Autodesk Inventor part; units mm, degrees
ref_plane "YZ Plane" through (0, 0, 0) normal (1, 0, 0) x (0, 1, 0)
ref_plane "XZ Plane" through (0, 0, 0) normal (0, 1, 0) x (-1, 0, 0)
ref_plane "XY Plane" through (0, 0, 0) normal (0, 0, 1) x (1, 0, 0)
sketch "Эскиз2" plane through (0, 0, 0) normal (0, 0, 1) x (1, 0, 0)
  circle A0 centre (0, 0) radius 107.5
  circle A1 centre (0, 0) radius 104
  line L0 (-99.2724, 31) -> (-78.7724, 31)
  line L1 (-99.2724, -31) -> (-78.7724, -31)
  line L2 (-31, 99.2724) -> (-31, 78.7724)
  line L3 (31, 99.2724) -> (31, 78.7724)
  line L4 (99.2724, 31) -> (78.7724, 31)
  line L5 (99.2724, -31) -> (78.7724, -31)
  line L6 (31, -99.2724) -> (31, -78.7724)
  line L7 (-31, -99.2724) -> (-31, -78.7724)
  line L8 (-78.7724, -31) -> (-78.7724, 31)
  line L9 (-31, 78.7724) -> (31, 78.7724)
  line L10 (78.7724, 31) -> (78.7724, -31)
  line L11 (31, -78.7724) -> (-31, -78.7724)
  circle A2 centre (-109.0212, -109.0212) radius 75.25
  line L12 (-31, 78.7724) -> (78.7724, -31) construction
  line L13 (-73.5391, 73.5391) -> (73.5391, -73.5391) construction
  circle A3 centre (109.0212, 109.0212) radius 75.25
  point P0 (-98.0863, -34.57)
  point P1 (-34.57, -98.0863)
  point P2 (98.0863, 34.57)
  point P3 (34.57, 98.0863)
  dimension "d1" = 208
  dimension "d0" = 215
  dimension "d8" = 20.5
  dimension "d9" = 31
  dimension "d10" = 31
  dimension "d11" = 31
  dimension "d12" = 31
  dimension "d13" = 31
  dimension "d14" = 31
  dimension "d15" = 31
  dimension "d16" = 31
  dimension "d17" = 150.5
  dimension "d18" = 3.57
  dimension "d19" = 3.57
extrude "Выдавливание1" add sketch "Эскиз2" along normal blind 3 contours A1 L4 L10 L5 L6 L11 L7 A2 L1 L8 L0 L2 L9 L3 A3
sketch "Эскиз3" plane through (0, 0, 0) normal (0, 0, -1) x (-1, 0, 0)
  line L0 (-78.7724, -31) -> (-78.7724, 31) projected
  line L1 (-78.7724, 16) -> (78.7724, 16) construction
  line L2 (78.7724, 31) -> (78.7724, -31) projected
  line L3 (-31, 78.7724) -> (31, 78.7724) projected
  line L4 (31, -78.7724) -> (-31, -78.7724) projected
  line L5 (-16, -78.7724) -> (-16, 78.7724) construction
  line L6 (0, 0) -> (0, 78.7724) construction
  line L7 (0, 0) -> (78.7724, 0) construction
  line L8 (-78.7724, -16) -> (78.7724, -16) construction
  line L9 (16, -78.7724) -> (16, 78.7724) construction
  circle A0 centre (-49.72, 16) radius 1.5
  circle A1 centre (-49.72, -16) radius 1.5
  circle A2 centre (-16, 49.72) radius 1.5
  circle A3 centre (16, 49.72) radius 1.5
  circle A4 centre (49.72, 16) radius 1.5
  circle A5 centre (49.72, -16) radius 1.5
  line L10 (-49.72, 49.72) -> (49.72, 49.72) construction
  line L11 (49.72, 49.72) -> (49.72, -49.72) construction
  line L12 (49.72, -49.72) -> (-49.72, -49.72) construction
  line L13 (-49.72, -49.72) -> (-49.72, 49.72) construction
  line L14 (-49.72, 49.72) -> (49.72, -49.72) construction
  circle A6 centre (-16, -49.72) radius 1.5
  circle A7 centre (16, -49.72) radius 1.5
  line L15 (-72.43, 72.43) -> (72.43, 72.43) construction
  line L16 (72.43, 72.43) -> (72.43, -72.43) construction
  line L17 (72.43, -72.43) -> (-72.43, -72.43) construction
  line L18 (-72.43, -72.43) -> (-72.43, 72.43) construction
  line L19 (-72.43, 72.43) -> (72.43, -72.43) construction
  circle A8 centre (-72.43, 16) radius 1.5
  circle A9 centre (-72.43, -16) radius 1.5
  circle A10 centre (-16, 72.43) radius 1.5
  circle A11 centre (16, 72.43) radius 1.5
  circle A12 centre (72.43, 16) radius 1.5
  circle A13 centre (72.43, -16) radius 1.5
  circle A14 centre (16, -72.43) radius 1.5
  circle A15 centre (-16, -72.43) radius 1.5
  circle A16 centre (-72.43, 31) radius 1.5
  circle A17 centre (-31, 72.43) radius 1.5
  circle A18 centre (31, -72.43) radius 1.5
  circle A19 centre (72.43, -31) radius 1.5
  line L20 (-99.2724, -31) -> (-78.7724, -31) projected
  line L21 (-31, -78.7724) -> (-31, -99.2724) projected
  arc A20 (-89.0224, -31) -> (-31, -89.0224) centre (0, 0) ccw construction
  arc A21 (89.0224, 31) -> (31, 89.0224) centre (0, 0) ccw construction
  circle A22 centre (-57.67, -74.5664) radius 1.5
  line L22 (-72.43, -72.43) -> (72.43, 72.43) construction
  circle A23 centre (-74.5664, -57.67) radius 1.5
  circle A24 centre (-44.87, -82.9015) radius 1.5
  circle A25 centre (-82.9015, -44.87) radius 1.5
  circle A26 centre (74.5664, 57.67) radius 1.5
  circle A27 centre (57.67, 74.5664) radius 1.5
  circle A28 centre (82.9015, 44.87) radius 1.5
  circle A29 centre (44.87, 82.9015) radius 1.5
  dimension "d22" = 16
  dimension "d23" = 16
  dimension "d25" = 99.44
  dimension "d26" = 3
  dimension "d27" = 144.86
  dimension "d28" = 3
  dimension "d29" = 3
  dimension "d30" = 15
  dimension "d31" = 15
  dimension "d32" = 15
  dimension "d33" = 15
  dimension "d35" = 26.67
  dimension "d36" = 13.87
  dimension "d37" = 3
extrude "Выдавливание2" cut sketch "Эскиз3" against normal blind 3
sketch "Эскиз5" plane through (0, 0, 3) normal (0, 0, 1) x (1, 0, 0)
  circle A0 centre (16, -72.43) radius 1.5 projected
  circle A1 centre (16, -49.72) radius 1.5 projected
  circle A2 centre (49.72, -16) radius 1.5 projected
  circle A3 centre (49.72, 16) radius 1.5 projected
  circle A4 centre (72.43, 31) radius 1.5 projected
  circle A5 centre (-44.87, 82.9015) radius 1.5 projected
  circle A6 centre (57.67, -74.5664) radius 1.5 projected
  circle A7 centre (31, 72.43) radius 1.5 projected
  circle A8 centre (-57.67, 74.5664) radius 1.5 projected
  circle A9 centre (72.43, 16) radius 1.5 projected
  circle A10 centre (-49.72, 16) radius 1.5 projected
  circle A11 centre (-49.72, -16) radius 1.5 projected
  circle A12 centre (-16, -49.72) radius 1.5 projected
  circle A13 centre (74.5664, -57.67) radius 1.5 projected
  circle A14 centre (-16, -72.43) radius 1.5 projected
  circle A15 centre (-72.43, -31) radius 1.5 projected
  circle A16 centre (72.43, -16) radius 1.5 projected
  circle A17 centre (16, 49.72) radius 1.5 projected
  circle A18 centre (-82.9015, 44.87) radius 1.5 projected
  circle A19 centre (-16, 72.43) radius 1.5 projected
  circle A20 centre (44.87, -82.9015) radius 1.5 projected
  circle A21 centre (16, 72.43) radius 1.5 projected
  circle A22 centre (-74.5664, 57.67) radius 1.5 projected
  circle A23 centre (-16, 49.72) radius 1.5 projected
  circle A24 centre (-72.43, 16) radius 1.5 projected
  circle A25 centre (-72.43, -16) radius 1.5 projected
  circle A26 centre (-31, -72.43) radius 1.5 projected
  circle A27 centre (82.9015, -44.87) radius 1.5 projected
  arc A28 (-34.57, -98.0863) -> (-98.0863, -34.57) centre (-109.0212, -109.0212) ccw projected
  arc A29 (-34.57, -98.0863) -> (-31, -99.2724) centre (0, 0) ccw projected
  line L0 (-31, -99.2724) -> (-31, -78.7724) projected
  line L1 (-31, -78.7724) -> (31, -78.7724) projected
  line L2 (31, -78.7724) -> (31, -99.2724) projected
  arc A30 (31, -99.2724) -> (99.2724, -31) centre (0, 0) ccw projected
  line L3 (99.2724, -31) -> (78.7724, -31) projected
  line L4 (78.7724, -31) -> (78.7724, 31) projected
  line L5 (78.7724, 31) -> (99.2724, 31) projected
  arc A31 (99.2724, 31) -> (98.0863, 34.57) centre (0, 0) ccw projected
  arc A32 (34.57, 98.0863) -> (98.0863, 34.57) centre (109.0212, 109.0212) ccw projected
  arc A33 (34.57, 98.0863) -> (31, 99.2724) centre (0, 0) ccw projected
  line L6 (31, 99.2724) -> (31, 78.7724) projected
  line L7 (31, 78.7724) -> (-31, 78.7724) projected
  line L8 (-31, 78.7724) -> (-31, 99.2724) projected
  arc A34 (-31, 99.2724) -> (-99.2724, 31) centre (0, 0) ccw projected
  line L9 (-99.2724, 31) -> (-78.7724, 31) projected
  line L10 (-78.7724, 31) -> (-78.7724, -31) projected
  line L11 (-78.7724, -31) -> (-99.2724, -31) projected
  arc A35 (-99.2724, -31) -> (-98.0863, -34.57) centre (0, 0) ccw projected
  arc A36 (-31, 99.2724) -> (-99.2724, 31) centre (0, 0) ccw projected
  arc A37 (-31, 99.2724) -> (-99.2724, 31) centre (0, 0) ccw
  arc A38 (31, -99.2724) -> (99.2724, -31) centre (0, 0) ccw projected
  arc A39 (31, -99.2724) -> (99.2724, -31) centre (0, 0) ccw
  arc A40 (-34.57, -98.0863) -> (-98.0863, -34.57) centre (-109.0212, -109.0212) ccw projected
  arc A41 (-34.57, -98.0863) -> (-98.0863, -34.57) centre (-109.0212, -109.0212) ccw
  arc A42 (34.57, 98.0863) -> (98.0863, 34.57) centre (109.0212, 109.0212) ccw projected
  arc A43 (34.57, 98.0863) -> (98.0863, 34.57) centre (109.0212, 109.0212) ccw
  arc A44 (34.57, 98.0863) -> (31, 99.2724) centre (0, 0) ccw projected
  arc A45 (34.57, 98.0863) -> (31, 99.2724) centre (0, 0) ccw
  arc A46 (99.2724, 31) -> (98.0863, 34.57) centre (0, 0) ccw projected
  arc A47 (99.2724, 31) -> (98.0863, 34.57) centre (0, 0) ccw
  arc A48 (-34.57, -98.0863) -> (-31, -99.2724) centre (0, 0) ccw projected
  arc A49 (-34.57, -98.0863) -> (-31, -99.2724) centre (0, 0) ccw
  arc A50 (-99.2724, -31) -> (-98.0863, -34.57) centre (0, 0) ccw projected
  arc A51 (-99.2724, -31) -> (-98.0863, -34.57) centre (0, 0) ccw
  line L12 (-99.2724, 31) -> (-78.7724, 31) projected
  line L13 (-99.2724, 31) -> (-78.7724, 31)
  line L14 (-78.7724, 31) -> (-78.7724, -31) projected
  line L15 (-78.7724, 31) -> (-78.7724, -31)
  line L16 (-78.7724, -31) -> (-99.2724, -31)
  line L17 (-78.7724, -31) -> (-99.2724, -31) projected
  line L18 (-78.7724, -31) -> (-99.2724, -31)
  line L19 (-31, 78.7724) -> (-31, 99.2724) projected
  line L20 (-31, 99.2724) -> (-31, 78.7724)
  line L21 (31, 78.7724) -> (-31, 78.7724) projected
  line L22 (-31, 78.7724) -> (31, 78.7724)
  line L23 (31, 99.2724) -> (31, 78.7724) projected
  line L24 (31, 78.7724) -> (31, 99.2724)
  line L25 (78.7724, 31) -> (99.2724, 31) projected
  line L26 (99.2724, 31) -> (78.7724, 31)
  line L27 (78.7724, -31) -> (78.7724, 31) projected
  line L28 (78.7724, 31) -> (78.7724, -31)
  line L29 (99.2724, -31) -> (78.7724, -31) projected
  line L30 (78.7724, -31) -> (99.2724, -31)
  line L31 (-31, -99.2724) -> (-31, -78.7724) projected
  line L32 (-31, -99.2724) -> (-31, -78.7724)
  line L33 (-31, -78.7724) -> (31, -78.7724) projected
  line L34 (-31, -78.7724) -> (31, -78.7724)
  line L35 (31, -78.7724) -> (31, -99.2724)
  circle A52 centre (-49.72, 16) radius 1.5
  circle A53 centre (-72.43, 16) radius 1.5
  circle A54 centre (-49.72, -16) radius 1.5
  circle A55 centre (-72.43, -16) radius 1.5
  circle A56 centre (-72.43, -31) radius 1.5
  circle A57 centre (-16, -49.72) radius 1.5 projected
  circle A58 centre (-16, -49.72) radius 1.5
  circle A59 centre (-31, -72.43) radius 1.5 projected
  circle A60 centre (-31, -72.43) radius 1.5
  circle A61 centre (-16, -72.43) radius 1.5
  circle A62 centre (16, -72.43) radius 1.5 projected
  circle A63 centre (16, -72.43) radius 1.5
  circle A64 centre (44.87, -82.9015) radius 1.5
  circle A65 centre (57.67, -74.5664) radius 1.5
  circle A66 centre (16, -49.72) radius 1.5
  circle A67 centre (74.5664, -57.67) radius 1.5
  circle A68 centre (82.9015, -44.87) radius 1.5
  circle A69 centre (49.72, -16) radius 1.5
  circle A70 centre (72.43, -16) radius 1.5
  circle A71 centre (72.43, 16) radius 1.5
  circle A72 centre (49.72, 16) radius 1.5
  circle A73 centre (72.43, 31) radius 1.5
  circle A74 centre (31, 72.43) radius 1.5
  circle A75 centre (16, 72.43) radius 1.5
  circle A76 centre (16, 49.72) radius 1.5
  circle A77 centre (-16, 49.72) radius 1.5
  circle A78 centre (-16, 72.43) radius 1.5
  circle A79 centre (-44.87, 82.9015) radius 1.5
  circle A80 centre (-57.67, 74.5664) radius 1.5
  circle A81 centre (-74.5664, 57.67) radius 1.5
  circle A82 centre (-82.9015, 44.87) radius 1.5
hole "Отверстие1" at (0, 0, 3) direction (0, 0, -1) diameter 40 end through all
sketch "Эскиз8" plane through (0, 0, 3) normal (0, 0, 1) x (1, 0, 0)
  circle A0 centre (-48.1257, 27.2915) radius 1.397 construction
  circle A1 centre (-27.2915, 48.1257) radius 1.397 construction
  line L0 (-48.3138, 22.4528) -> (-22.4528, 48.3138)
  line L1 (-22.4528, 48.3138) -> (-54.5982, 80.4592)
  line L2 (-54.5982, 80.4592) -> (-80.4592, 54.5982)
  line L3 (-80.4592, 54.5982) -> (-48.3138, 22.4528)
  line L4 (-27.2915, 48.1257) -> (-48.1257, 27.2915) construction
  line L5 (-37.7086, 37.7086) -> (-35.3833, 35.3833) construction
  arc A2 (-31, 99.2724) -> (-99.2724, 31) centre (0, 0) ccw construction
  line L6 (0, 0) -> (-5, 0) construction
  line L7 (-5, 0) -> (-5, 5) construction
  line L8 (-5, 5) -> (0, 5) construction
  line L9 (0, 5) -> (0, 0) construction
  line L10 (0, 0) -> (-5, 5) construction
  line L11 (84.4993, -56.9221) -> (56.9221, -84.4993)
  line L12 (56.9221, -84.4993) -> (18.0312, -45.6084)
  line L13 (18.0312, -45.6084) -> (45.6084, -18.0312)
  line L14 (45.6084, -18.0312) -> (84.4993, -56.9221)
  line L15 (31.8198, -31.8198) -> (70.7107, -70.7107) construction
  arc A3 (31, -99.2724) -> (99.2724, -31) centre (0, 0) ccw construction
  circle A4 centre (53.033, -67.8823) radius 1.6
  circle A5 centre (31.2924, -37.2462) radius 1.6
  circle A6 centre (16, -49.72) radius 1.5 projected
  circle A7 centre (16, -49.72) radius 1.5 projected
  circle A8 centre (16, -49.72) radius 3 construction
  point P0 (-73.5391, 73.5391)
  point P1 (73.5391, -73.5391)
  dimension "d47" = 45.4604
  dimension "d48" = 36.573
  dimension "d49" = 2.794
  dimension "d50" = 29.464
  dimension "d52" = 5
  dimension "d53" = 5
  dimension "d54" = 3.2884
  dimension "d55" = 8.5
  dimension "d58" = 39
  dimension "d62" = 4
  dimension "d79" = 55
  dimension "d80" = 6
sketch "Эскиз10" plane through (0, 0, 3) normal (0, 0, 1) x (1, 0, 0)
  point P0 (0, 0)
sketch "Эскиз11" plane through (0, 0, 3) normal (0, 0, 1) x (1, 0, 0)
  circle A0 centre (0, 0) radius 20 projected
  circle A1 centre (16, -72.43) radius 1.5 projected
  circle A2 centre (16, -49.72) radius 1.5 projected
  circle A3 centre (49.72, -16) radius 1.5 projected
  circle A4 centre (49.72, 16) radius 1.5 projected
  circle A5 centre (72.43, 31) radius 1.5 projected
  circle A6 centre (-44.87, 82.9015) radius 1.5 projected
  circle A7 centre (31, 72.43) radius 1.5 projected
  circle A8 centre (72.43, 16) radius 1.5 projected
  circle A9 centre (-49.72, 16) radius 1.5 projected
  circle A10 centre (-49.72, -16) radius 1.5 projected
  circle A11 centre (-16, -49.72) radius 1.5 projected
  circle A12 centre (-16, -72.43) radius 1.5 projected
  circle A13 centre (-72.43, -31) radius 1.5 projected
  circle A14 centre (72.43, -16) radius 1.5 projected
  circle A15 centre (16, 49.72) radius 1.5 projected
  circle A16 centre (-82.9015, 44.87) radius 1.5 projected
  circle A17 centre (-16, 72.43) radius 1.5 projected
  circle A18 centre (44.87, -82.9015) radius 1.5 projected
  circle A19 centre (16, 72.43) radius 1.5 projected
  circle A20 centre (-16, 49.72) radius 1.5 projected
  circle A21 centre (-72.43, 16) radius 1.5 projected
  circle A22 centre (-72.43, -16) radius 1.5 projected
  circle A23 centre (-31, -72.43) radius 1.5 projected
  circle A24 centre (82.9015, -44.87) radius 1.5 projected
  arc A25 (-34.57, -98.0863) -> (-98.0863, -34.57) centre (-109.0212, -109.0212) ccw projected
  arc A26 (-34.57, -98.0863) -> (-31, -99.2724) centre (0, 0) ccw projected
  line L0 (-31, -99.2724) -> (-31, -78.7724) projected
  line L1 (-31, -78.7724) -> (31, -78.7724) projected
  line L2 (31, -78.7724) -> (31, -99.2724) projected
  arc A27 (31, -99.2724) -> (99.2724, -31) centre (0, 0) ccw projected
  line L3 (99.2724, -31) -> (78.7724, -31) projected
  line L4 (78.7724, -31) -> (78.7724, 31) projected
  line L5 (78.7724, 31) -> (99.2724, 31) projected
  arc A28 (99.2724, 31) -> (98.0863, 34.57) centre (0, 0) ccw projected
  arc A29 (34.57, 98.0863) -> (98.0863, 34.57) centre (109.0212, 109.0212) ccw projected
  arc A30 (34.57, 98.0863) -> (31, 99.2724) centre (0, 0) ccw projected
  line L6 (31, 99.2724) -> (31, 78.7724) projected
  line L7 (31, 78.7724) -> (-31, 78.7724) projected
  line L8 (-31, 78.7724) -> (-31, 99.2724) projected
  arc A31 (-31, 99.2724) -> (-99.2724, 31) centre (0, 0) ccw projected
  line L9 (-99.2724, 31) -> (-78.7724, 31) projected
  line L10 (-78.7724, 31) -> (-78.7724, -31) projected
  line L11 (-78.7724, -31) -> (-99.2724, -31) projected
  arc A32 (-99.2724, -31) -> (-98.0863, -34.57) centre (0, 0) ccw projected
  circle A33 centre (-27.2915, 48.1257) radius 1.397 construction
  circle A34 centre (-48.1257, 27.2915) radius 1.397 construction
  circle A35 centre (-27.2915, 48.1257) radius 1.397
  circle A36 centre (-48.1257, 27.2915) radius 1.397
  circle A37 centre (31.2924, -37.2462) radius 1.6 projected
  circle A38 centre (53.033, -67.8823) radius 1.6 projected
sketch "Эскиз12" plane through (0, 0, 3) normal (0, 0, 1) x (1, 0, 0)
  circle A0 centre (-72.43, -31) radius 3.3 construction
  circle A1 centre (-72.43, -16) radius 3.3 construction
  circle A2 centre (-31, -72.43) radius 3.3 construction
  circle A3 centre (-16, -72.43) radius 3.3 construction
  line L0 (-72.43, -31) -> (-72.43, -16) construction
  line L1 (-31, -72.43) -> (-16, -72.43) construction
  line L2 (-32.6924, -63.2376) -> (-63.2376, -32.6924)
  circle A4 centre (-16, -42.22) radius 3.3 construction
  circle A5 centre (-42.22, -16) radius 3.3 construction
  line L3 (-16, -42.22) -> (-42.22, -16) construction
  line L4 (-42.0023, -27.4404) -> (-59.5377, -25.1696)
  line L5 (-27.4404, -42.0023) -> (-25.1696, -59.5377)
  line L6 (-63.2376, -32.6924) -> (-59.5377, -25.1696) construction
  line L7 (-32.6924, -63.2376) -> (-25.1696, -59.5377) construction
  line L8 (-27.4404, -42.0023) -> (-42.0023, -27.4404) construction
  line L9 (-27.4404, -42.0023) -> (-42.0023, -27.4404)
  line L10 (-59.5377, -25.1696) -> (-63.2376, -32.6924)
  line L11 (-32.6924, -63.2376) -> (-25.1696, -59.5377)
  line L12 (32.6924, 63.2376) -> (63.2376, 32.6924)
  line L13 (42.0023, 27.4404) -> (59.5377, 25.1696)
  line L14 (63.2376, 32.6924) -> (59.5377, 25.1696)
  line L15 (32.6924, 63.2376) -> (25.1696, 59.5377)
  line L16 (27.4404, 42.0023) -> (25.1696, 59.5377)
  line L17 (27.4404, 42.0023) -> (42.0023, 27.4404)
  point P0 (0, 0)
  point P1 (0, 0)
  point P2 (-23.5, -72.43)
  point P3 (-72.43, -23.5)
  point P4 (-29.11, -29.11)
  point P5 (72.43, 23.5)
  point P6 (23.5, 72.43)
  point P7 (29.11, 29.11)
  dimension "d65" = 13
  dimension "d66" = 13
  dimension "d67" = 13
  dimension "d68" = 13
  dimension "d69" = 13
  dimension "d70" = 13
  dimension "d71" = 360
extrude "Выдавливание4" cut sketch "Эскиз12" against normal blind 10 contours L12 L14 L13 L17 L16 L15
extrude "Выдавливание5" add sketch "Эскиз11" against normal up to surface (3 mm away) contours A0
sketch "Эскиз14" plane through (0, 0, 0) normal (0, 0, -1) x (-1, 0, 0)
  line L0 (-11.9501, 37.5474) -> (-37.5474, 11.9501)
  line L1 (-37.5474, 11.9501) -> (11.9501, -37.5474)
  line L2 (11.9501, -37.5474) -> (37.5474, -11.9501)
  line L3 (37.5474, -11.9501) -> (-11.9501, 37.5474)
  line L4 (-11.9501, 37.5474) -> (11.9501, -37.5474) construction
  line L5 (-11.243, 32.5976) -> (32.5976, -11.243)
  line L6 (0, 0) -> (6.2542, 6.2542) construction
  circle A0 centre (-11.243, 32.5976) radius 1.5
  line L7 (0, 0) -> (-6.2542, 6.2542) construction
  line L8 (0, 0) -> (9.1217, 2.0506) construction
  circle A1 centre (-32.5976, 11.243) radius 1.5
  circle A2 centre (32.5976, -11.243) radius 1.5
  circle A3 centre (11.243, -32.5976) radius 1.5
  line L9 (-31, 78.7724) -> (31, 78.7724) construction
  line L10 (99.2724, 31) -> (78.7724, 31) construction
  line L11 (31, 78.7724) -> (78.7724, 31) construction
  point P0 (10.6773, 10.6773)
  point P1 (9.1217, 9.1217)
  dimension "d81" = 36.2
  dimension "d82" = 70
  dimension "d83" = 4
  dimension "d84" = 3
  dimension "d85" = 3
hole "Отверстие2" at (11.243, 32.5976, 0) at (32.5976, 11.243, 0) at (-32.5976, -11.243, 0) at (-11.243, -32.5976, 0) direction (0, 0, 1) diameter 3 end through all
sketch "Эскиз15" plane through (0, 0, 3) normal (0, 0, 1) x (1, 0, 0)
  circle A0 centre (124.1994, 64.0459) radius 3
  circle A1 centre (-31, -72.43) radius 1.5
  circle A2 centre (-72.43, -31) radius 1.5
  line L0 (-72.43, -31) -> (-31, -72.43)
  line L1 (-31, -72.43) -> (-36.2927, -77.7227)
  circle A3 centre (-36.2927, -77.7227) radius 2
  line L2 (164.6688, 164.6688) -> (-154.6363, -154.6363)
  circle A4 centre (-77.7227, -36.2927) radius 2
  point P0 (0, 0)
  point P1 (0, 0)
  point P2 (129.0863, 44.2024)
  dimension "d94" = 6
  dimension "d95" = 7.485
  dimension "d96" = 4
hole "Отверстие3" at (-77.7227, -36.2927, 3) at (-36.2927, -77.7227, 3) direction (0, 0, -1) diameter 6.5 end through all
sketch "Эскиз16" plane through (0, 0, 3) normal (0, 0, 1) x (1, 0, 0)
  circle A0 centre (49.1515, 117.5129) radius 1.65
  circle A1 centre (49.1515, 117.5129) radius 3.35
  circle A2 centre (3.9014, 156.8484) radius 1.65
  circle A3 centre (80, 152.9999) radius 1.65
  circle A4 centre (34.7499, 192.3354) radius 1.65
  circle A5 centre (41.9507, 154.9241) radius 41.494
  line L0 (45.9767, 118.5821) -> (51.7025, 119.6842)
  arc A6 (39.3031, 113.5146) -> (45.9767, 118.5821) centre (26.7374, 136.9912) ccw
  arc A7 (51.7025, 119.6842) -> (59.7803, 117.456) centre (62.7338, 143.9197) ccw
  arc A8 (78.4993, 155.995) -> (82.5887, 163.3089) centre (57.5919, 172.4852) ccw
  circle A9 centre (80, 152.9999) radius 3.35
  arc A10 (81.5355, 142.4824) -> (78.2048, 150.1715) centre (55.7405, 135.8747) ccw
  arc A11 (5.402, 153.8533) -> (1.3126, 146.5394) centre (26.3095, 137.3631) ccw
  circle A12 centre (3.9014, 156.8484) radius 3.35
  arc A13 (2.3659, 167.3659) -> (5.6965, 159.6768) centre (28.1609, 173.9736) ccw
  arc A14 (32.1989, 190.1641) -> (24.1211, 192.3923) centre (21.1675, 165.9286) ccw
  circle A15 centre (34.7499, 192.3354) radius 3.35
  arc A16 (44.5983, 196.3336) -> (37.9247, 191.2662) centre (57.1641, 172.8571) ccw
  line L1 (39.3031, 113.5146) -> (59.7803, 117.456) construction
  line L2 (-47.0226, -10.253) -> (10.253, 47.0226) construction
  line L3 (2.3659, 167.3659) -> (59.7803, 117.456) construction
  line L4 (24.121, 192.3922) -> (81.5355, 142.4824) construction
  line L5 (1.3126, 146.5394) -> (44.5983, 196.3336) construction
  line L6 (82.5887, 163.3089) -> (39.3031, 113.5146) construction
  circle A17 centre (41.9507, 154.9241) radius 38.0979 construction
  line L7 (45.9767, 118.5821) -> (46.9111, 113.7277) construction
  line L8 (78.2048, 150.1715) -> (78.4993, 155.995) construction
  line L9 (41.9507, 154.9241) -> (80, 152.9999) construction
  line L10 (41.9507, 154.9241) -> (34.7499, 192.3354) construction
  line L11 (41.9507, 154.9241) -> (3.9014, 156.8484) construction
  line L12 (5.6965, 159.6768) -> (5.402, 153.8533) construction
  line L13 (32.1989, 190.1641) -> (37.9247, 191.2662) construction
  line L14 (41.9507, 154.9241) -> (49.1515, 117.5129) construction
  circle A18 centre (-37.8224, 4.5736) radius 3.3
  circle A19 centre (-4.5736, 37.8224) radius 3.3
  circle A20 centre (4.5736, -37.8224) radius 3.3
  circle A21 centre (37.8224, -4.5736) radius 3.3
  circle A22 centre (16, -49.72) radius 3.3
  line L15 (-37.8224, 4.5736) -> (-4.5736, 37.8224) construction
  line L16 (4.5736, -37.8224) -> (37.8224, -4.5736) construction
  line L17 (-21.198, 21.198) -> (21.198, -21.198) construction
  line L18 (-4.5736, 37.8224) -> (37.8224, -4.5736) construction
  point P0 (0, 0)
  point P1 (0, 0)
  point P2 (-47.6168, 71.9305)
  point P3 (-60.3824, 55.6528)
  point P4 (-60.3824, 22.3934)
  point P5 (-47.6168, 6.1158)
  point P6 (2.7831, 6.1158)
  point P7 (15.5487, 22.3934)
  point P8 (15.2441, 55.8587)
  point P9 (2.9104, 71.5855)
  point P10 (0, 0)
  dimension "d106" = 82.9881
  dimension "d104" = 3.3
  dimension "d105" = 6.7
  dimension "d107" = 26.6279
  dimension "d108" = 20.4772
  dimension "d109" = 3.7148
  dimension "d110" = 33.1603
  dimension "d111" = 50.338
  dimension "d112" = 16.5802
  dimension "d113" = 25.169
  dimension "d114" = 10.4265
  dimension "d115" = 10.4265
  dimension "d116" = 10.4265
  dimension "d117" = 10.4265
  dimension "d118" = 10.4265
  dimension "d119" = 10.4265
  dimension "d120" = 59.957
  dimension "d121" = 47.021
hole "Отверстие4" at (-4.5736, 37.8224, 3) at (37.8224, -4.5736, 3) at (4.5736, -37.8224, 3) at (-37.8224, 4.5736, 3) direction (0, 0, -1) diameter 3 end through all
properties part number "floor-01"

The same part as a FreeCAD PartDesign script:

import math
import FreeCAD as App
import Part
import Sketcher

V = App.Vector
Q = App.Units.Quantity

doc = App.newDocument("Part")
body = doc.addObject("PartDesign::Body", "Body")

sketch1 = body.newObject("Sketcher::SketchObject", "Sketch")
sketch1.AttachmentSupport = (doc.getObject("XY_Plane"), [""])
sketch1.MapMode = "FlatFace"
sketch1.addGeometry([
    Part.ArcOfCircle(Part.Circle(V(0, 0, 0), V(0, 0, 1), 104), math.radians(17.34), math.radians(19.41)),
    Part.ArcOfCircle(Part.Circle(V(109, 109, 0), V(0, 0, 1), 75.2), math.radians(-172), math.radians(-98)),
    Part.ArcOfCircle(Part.Circle(V(0, 0, 0), V(0, 0, 1), 104), math.radians(70.59), math.radians(72.66)),
    Part.LineSegment(V(31, 99.3, 0), V(31, 78.8, 0)),
    Part.LineSegment(V(31, 78.8, 0), V(-31, 78.8, 0)),
    Part.LineSegment(V(-31, 78.8, 0), V(-31, 99.3, 0)),
    Part.ArcOfCircle(Part.Circle(V(0, 0, 0), V(0, 0, 1), 104), math.radians(107), math.radians(163)),
    Part.LineSegment(V(-99.3, 31, 0), V(-78.8, 31, 0)),
    Part.LineSegment(V(-78.8, 31, 0), V(-78.8, -31, 0)),
    Part.LineSegment(V(-78.8, -31, 0), V(-99.3, -31, 0)),
    Part.ArcOfCircle(Part.Circle(V(0, 0, 0), V(0, 0, 1), 104), math.radians(-162.66), math.radians(-160.59)),
    Part.ArcOfCircle(Part.Circle(V(-109, -109, 0), V(0, 0, 1), 75.2), math.radians(8), math.radians(82)),
    Part.ArcOfCircle(Part.Circle(V(0, 0, 0), V(0, 0, 1), 104), math.radians(-109.41), math.radians(-107.34)),
    Part.LineSegment(V(-31, -99.3, 0), V(-31, -78.8, 0)),
    Part.LineSegment(V(-31, -78.8, 0), V(31, -78.8, 0)),
    Part.LineSegment(V(31, -78.8, 0), V(31, -99.3, 0)),
    Part.ArcOfCircle(Part.Circle(V(0, 0, 0), V(0, 0, 1), 104), math.radians(-73), math.radians(-17)),
    Part.LineSegment(V(99.3, -31, 0), V(78.8, -31, 0)),
    Part.LineSegment(V(78.8, -31, 0), V(78.8, 31, 0)),
    Part.LineSegment(V(78.8, 31, 0), V(99.3, 31, 0)),
], False)
sketch1.addConstraint([
    Sketcher.Constraint("Coincident", 0, 2, 1, 2),
    Sketcher.Constraint("Coincident", 1, 1, 2, 1),
    Sketcher.Constraint("Coincident", 2, 2, 3, 1),
    Sketcher.Constraint("Coincident", 3, 2, 4, 1),
    Sketcher.Constraint("Coincident", 4, 2, 5, 1),
    Sketcher.Constraint("Coincident", 5, 2, 6, 1),
    Sketcher.Constraint("Coincident", 6, 2, 7, 1),
    Sketcher.Constraint("Coincident", 7, 2, 8, 1),
    Sketcher.Constraint("Coincident", 8, 2, 9, 1),
    Sketcher.Constraint("Coincident", 9, 2, 10, 1),
    Sketcher.Constraint("Coincident", 10, 2, 11, 2),
    Sketcher.Constraint("Coincident", 11, 1, 12, 1),
    Sketcher.Constraint("Coincident", 12, 2, 13, 1),
    Sketcher.Constraint("Coincident", 13, 2, 14, 1),
    Sketcher.Constraint("Coincident", 14, 2, 15, 1),
    Sketcher.Constraint("Coincident", 15, 2, 16, 1),
    Sketcher.Constraint("Coincident", 16, 2, 17, 1),
    Sketcher.Constraint("Coincident", 17, 2, 18, 1),
    Sketcher.Constraint("Coincident", 18, 2, 19, 1),
    Sketcher.Constraint("Coincident", 19, 2, 0, 1),
    Sketcher.Constraint("Vertical", 3),
    Sketcher.Constraint("Horizontal", 4),
    Sketcher.Constraint("Vertical", 5),
    Sketcher.Constraint("Horizontal", 7),
    Sketcher.Constraint("Vertical", 8),
    Sketcher.Constraint("Horizontal", 9),
    Sketcher.Constraint("Vertical", 13),
    Sketcher.Constraint("Horizontal", 14),
    Sketcher.Constraint("Vertical", 15),
    Sketcher.Constraint("Horizontal", 17),
    Sketcher.Constraint("Vertical", 18),
    Sketcher.Constraint("Horizontal", 19),
    Sketcher.Constraint("Coincident", 0, 3, -1, 1),
    Sketcher.Constraint("Coincident", 2, 3, -1, 1),
    Sketcher.Constraint("Coincident", 6, 3, -1, 1),
    Sketcher.Constraint("Coincident", 10, 3, -1, 1),
    Sketcher.Constraint("Coincident", 12, 3, -1, 1),
    Sketcher.Constraint("Coincident", 16, 3, -1, 1),
    Sketcher.Constraint("Equal", 0, 2),
    Sketcher.Constraint("Equal", 2, 6),
    Sketcher.Constraint("Equal", 6, 10),
    Sketcher.Constraint("Equal", 1, 11),
    Sketcher.Constraint("Equal", 10, 12),
    Sketcher.Constraint("Equal", 12, 16),
    Sketcher.Constraint("Symmetric", 1, 3, 11, 3, -1, 1),
    Sketcher.Constraint("Symmetric", 3, 2, 13, 2, -1, 1),
    Sketcher.Constraint("Symmetric", 7, 2, 17, 2, -1, 1),
    Sketcher.Constraint("Horizontal", 2, 2, 5, 2),
    Sketcher.Constraint("Horizontal", 12, 2, 15, 2),
    Sketcher.Constraint("Horizontal", 9, 2, 16, 2),
    Sketcher.Constraint("Horizontal", 7, 2, 18, 2),
    Sketcher.Constraint("Equal", 19, 3),
    Sketcher.Constraint("Equal", 14, 8),
    Sketcher.Constraint("Radius", 0, Q("104 mm")),
    Sketcher.Constraint("Radius", 1, Q("75.25 mm")),
    Sketcher.Constraint("DistanceX", 7, 1, 7, 2, Q("20.5 mm")),
    Sketcher.Constraint("DistanceX", -1, 1, 3, 2, Q("31 mm")),
    Sketcher.Constraint("DistanceX", 2, 2, 1, 1, Q("3.57 mm")),
    Sketcher.Constraint("DistanceY", 10, 2, 9, 2, Q("3.57 mm")),
])
pad1 = body.newObject("PartDesign::Pad", "Pad")
pad1.Profile = sketch1
pad1.Length = 3

sketch2 = body.newObject("Sketcher::SketchObject", "Sketch001")
sketch2.AttachmentSupport = (doc.getObject("XY_Plane"), [""])
sketch2.MapMode = "FlatFace"
sketch2.addGeometry([
    Part.Circle(V(49.7, 16, 0), V(0, 0, 1), 1.5),
    Part.Circle(V(49.7, -16, 0), V(0, 0, 1), 1.5),
    Part.Circle(V(16, 49.7, 0), V(0, 0, 1), 1.5),
    Part.Circle(V(-16, 49.7, 0), V(0, 0, 1), 1.5),
    Part.Circle(V(-49.7, 16, 0), V(0, 0, 1), 1.5),
    Part.Circle(V(-49.7, -16, 0), V(0, 0, 1), 1.5),
    Part.Circle(V(16, -49.7, 0), V(0, 0, 1), 1.5),
    Part.Circle(V(-16, -49.7, 0), V(0, 0, 1), 1.5),
    Part.Circle(V(72.4, 16, 0), V(0, 0, 1), 1.5),
    Part.Circle(V(72.4, -16, 0), V(0, 0, 1), 1.5),
    Part.Circle(V(16, 72.4, 0), V(0, 0, 1), 1.5),
    Part.Circle(V(-16, 72.4, 0), V(0, 0, 1), 1.5),
    Part.Circle(V(-72.4, 16, 0), V(0, 0, 1), 1.5),
    Part.Circle(V(-72.4, -16, 0), V(0, 0, 1), 1.5),
    Part.Circle(V(-16, -72.4, 0), V(0, 0, 1), 1.5),
    Part.Circle(V(16, -72.4, 0), V(0, 0, 1), 1.5),
    Part.Circle(V(72.4, 31, 0), V(0, 0, 1), 1.5),
    Part.Circle(V(31, 72.4, 0), V(0, 0, 1), 1.5),
    Part.Circle(V(-31, -72.4, 0), V(0, 0, 1), 1.5),
    Part.Circle(V(-72.4, -31, 0), V(0, 0, 1), 1.5),
    Part.Circle(V(57.7, -74.6, 0), V(0, 0, 1), 1.5),
    Part.Circle(V(74.6, -57.7, 0), V(0, 0, 1), 1.5),
    Part.Circle(V(44.9, -82.9, 0), V(0, 0, 1), 1.5),
    Part.Circle(V(82.9, -44.9, 0), V(0, 0, 1), 1.5),
    Part.Circle(V(-74.6, 57.7, 0), V(0, 0, 1), 1.5),
    Part.Circle(V(-57.7, 74.6, 0), V(0, 0, 1), 1.5),
    Part.Circle(V(-82.9, 44.9, 0), V(0, 0, 1), 1.5),
    Part.Circle(V(-44.9, 82.9, 0), V(0, 0, 1), 1.5),
], False)
sketch2.addConstraint([
    Sketcher.Constraint("Equal", 0, 1),
    Sketcher.Constraint("Equal", 1, 2),
    Sketcher.Constraint("Equal", 2, 3),
    Sketcher.Constraint("Equal", 3, 4),
    Sketcher.Constraint("Equal", 4, 5),
    Sketcher.Constraint("Equal", 5, 6),
    Sketcher.Constraint("Equal", 6, 7),
    Sketcher.Constraint("Equal", 7, 8),
    Sketcher.Constraint("Equal", 8, 9),
    Sketcher.Constraint("Equal", 9, 10),
    Sketcher.Constraint("Equal", 10, 11),
    Sketcher.Constraint("Equal", 11, 12),
    Sketcher.Constraint("Equal", 12, 13),
    Sketcher.Constraint("Equal", 13, 14),
    Sketcher.Constraint("Equal", 14, 15),
    Sketcher.Constraint("Equal", 15, 16),
    Sketcher.Constraint("Equal", 16, 17),
    Sketcher.Constraint("Equal", 17, 18),
    Sketcher.Constraint("Equal", 18, 19),
    Sketcher.Constraint("Equal", 19, 20),
    Sketcher.Constraint("Equal", 20, 21),
    Sketcher.Constraint("Equal", 21, 22),
    Sketcher.Constraint("Equal", 22, 23),
    Sketcher.Constraint("Equal", 23, 24),
    Sketcher.Constraint("Equal", 24, 25),
    Sketcher.Constraint("Equal", 25, 26),
    Sketcher.Constraint("Equal", 26, 27),
    Sketcher.Constraint("Symmetric", 1, 3, 4, 3, -1, 1),
    Sketcher.Constraint("Symmetric", 0, 3, 5, 3, -1, 1),
    Sketcher.Constraint("Symmetric", 3, 3, 6, 3, -1, 1),
    Sketcher.Constraint("Symmetric", 2, 3, 7, 3, -1, 1),
    Sketcher.Constraint("Symmetric", 9, 3, 12, 3, -1, 1),
    Sketcher.Constraint("Symmetric", 8, 3, 13, 3, -1, 1),
    Sketcher.Constraint("Symmetric", 10, 3, 14, 3, -1, 1),
    Sketcher.Constraint("Symmetric", 11, 3, 15, 3, -1, 1),
    Sketcher.Constraint("Symmetric", 17, 3, 18, 3, -1, 1),
    Sketcher.Constraint("Symmetric", 16, 3, 19, 3, -1, 1),
    Sketcher.Constraint("Symmetric", 21, 3, 24, 3, -1, 1),
    Sketcher.Constraint("Symmetric", 20, 3, 25, 3, -1, 1),
    Sketcher.Constraint("Symmetric", 23, 3, 26, 3, -1, 1),
    Sketcher.Constraint("Symmetric", 22, 3, 27, 3, -1, 1),
    Sketcher.Constraint("Symmetric", 2, 3, 3, 3, -2),
    Sketcher.Constraint("Symmetric", 0, 3, 4, 3, -2),
    Sketcher.Constraint("Symmetric", 10, 3, 11, 3, -2),
    Sketcher.Constraint("Symmetric", 8, 3, 12, 3, -2),
    Sketcher.Constraint("Horizontal", 4, 3, 8, 3),
    Sketcher.Constraint("Horizontal", 11, 3, 17, 3),
    Sketcher.Constraint("Vertical", 6, 3, 10, 3),
    Sketcher.Constraint("Vertical", 9, 3, 16, 3),
    Sketcher.Constraint("Diameter", 0, Q("3 mm")),
    Sketcher.Constraint("DistanceY", -1, 1, 0, 3, Q("16 mm")),
    Sketcher.Constraint("DistanceX", -1, 1, 2, 3, Q("16 mm")),
    Sketcher.Constraint("DistanceY", 8, 3, 16, 3, Q("15 mm")),
    Sketcher.Constraint("DistanceX", 10, 3, 17, 3, Q("15 mm")),
    Sketcher.Constraint("DistanceX", 4, 3, 0, 3, Q("99.44 mm")),
    Sketcher.Constraint("DistanceY", 6, 3, 2, 3, Q("99.44 mm")),
    Sketcher.Constraint("DistanceX", 22, 3, 20, 3, Q("12.8 mm")),
    Sketcher.Constraint("DistanceY", 21, 3, 23, 3, Q("12.8 mm")),
    Sketcher.Constraint("DistanceX", -1, 1, 8, 3, Q("72.43 mm")),
    Sketcher.Constraint("DistanceY", -1, 1, 10, 3, Q("72.43 mm")),
    Sketcher.Constraint("DistanceX", -1, 1, 20, 3, Q("57.67 mm")),
    Sketcher.Constraint("DistanceY", 21, 3, -1, 1, Q("57.67 mm")),
    Sketcher.Constraint("DistanceY", 22, 3, 20, 3, Q("8.335 mm")),
    Sketcher.Constraint("DistanceX", 21, 3, 23, 3, Q("8.335 mm")),
    Sketcher.Constraint("DistanceY", 20, 3, -1, 1, Q("74.5664 mm")),
    Sketcher.Constraint("DistanceX", -1, 1, 21, 3, Q("74.5664 mm")),
])
pocket1 = body.newObject("PartDesign::Pocket", "Pocket")
pocket1.Profile = sketch2
pocket1.Length = 3
pocket1.Reversed = True

sketch3 = body.newObject("Sketcher::SketchObject", "Sketch002")
sketch3.AttachmentSupport = (doc.getObject("XY_Plane"), [""])
sketch3.MapMode = "FlatFace"
sketch3.AttachmentOffset = App.Placement(V(0, 0, 3), App.Rotation())
sketch3.addGeometry(Part.Circle(V(0, 0, 0), V(0, 0, 1), 20), False)
sketch3.addConstraint([
    Sketcher.Constraint("Coincident", 0, 3, -1, 1),
    Sketcher.Constraint("Diameter", 0, Q("40 mm")),
])
doc.recompute()
hole = body.newObject("PartDesign::Hole", "Hole")
hole.Profile = sketch3
hole.ThreadType = "None"
hole.Diameter = 40
hole.DepthType = "ThroughAll"

sketch4 = body.newObject("Sketcher::SketchObject", "Sketch003")
sketch4.AttachmentSupport = (doc.getObject("XY_Plane"), [""])
sketch4.MapMode = "FlatFace"
sketch4.AttachmentOffset = App.Placement(V(0, 0, 3), App.Rotation())
sketch4.addGeometry([
    Part.LineSegment(V(63, 33, 0), V(33, 63, 0)),
    Part.LineSegment(V(33, 63, 0), V(25, 60, 0)),
    Part.LineSegment(V(25, 60, 0), V(27, 42, 0)),
    Part.LineSegment(V(27, 42, 0), V(42, 27, 0)),
    Part.LineSegment(V(42, 27, 0), V(60, 25, 0)),
    Part.LineSegment(V(60, 25, 0), V(63, 33, 0)),
], False)
sketch4.addConstraint([
    Sketcher.Constraint("Coincident", 0, 2, 1, 1),
    Sketcher.Constraint("Coincident", 1, 2, 2, 1),
    Sketcher.Constraint("Coincident", 2, 2, 3, 1),
    Sketcher.Constraint("Coincident", 3, 2, 4, 1),
    Sketcher.Constraint("Coincident", 4, 2, 5, 1),
    Sketcher.Constraint("Coincident", 5, 2, 0, 1),
    Sketcher.Constraint("Parallel", 0, 3),
    Sketcher.Constraint("Equal", 2, 4),
    Sketcher.Constraint("Equal", 1, 5),
    Sketcher.Constraint("Angle", 0, Q("135 deg")),
    Sketcher.Constraint("Angle", 1, Q("-153.811 deg")),
    Sketcher.Constraint("Angle", 5, Q("63.811 deg")),
    Sketcher.Constraint("DistanceY", 1, 2, 0, 2, Q("3.7 mm")),
    Sketcher.Constraint("DistanceX", 0, 2, 3, 2, Q("9.31 mm")),
    Sketcher.Constraint("DistanceX", 2, 2, 0, 2, Q("5.252 mm")),
    Sketcher.Constraint("DistanceY", 4, 2, 0, 2, Q("38.068 mm")),
    Sketcher.Constraint("DistanceX", -1, 1, 0, 2, Q("32.6924 mm")),
    Sketcher.Constraint("DistanceY", -1, 1, 0, 2, Q("63.2376 mm")),
])
pocket2 = body.newObject("PartDesign::Pocket", "Pocket001")
pocket2.Profile = sketch4
pocket2.Length = 10

sketch5 = body.newObject("Sketcher::SketchObject", "Sketch004")
sketch5.AttachmentSupport = (doc.getObject("XY_Plane"), [""])
sketch5.MapMode = "FlatFace"
sketch5.AttachmentOffset = App.Placement(V(0, 0, 3), App.Rotation())
sketch5.addGeometry(Part.Circle(V(0, 0, 0), V(0, 0, 1), 20), False)
sketch5.addConstraint([
    Sketcher.Constraint("Coincident", 0, 3, -1, 1),
    Sketcher.Constraint("Diameter", 0, Q("40 mm")),
])
pad2 = body.newObject("PartDesign::Pad", "Pad001")
pad2.Profile = sketch5
pad2.Length = 3
pad2.Reversed = True

sketch6 = body.newObject("Sketcher::SketchObject", "Sketch005")
sketch6.AttachmentSupport = (doc.getObject("XY_Plane"), [""])
sketch6.MapMode = "FlatFace"
sketch6.addGeometry([
    Part.Circle(V(11.2, 32.6, 0), V(0, 0, 1), 1.5),
    Part.Circle(V(32.6, 11.2, 0), V(0, 0, 1), 1.5),
    Part.Circle(V(-32.6, -11.2, 0), V(0, 0, 1), 1.5),
    Part.Circle(V(-11.2, -32.6, 0), V(0, 0, 1), 1.5),
], False)
sketch6.addConstraint([
    Sketcher.Constraint("Equal", 0, 1),
    Sketcher.Constraint("Equal", 1, 2),
    Sketcher.Constraint("Equal", 2, 3),
    Sketcher.Constraint("Symmetric", 1, 3, 2, 3, -1, 1),
    Sketcher.Constraint("Symmetric", 0, 3, 3, 3, -1, 1),
    Sketcher.Constraint("Diameter", 0, Q("3 mm")),
    Sketcher.Constraint("DistanceX", -1, 1, 0, 3, Q("11.243 mm")),
    Sketcher.Constraint("DistanceY", -1, 1, 1, 3, Q("11.243 mm")),
    Sketcher.Constraint("DistanceY", -1, 1, 0, 3, Q("32.5976 mm")),
    Sketcher.Constraint("DistanceX", -1, 1, 1, 3, Q("32.5976 mm")),
])
doc.recompute()
hole2 = body.newObject("PartDesign::Hole", "Hole001")
hole2.Profile = sketch6
hole2.ThreadType = "None"
hole2.Diameter = 3
hole2.DepthType = "ThroughAll"
hole2.Reversed = True

sketch7 = body.newObject("Sketcher::SketchObject", "Sketch006")
sketch7.AttachmentSupport = (doc.getObject("XY_Plane"), [""])
sketch7.MapMode = "FlatFace"
sketch7.AttachmentOffset = App.Placement(V(0, 0, 3), App.Rotation())
sketch7.addGeometry([
    Part.Circle(V(-77.7, -36.3, 0), V(0, 0, 1), 3.2),
    Part.Circle(V(-36.3, -77.7, 0), V(0, 0, 1), 3.2),
], False)
sketch7.addConstraint([
    Sketcher.Constraint("Equal", 0, 1),
    Sketcher.Constraint("Diameter", 0, Q("6.5 mm")),
    Sketcher.Constraint("DistanceX", 0, 3, 1, 3, Q("41.43 mm")),
    Sketcher.Constraint("DistanceY", 1, 3, 0, 3, Q("41.43 mm")),
    Sketcher.Constraint("DistanceX", 0, 3, -1, 1, Q("77.7227 mm")),
    Sketcher.Constraint("DistanceY", 0, 3, -1, 1, Q("36.2927 mm")),
])
doc.recompute()
hole3 = body.newObject("PartDesign::Hole", "Hole002")
hole3.Profile = sketch7
hole3.ThreadType = "None"
hole3.Diameter = 6.5
hole3.DepthType = "ThroughAll"

sketch8 = body.newObject("Sketcher::SketchObject", "Sketch007")
sketch8.AttachmentSupport = (doc.getObject("XY_Plane"), [""])
sketch8.MapMode = "FlatFace"
sketch8.AttachmentOffset = App.Placement(V(0, 0, 3), App.Rotation())
sketch8.addGeometry([
    Part.Circle(V(-4.6, 37.8, 0), V(0, 0, 1), 1.5),
    Part.Circle(V(37.8, -4.6, 0), V(0, 0, 1), 1.5),
    Part.Circle(V(4.6, -37.8, 0), V(0, 0, 1), 1.5),
    Part.Circle(V(-37.8, 4.6, 0), V(0, 0, 1), 1.5),
], False)
sketch8.addConstraint([
    Sketcher.Constraint("Equal", 0, 1),
    Sketcher.Constraint("Equal", 1, 2),
    Sketcher.Constraint("Equal", 2, 3),
    Sketcher.Constraint("Symmetric", 0, 3, 2, 3, -1, 1),
    Sketcher.Constraint("Symmetric", 1, 3, 3, 3, -1, 1),
    Sketcher.Constraint("Diameter", 0, Q("3 mm")),
    Sketcher.Constraint("DistanceX", 0, 3, 1, 3, Q("42.396 mm")),
    Sketcher.Constraint("DistanceY", 1, 3, 0, 3, Q("42.396 mm")),
    Sketcher.Constraint("DistanceX", 0, 3, -1, 1, Q("4.5736 mm")),
    Sketcher.Constraint("DistanceY", -1, 1, 0, 3, Q("37.8224 mm")),
])
doc.recompute()
hole4 = body.newObject("PartDesign::Hole", "Hole003")
hole4.Profile = sketch8
hole4.ThreadType = "None"
hole4.Diameter = 3
hole4.DepthType = "ThroughAll"

doc.recompute()
